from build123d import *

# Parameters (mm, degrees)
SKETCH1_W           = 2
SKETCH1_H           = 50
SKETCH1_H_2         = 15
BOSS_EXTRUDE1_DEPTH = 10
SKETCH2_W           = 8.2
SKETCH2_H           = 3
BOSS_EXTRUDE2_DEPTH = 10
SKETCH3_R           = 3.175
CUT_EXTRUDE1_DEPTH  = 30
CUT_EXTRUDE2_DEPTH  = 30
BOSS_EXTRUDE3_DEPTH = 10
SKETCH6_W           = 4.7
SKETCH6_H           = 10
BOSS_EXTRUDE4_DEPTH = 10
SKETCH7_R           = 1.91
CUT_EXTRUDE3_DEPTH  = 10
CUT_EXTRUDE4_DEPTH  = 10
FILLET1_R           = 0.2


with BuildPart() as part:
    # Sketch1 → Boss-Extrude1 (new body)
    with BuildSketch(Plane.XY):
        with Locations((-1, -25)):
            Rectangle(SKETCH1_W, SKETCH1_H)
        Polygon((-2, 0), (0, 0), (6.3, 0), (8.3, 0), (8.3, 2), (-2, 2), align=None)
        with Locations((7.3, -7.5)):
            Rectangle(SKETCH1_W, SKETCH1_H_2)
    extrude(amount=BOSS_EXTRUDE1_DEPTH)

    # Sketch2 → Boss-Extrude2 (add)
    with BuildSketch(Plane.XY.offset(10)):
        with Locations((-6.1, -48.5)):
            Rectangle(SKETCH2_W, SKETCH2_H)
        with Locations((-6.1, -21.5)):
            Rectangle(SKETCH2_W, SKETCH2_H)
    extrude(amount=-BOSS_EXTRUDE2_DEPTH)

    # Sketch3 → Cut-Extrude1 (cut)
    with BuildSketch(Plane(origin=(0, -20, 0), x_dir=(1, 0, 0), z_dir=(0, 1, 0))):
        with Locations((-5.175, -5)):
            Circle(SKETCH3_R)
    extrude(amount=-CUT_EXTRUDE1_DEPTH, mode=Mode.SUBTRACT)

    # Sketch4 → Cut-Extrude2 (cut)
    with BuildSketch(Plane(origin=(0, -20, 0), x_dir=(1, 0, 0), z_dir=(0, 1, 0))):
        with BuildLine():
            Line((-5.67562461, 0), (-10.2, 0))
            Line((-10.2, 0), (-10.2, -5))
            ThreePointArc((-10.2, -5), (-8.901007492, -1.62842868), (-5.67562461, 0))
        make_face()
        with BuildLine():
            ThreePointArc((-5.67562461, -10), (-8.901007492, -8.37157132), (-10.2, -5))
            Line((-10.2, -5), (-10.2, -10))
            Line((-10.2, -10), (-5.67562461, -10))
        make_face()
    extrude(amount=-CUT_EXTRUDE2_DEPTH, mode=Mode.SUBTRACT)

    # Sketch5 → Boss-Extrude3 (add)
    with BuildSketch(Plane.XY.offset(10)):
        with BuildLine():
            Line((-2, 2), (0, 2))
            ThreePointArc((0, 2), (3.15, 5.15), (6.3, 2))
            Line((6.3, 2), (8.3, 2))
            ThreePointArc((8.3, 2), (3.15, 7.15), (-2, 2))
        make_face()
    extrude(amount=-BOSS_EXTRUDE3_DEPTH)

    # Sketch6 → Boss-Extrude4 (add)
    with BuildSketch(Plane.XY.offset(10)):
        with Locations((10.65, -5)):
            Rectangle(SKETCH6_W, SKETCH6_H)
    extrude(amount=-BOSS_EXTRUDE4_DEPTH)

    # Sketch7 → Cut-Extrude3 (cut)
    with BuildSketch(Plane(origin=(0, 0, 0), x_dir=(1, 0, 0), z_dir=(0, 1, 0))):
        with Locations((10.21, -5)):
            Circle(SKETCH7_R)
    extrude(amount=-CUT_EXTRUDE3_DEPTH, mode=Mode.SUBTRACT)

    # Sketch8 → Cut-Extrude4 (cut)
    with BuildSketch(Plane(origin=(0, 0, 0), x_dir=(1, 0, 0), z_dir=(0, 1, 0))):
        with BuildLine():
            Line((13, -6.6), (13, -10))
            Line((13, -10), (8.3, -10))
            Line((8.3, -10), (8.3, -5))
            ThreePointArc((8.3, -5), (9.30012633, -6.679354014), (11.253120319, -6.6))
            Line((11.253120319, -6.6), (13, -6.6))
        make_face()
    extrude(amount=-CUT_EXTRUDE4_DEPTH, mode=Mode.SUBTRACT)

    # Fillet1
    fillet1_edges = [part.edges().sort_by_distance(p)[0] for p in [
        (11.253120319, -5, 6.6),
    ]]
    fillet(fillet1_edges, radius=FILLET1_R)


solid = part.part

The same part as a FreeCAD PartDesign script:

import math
import FreeCAD as App
import Part
import Sketcher


def edges_at(feature, points):
    """Names of the edges that pass closest to the given points."""
    edges = feature.Shape.Edges
    near = lambda p: min(range(len(edges)), key=lambda i: edges[i].distToShape(Part.Vertex(*p))[0])
    return sorted({f"Edge{near(p) + 1}" for p in points})

doc = App.newDocument("Part")
body = doc.addObject("PartDesign::Body", "Body")

# Sketch on XY plane
sketch1 = body.newObject("Sketcher::SketchObject", "Sketch")
sketch1.AttachmentSupport = (doc.getObject("XY_Plane"), [""])
sketch1.MapMode = "FlatFace"
sketch1.addGeometry([
    Part.LineSegment(App.Vector(-2, -50, 0), App.Vector(0, -50, 0)),  # 0
    Part.LineSegment(App.Vector(0, -50, 0), App.Vector(0, 0, 0)),  # 1
    Part.LineSegment(App.Vector(0, 0, 0), App.Vector(6.3, 0, 0)),  # 2
    Part.LineSegment(App.Vector(6.3, 0, 0), App.Vector(6.3, -15, 0)),  # 3
    Part.LineSegment(App.Vector(6.3, -15, 0), App.Vector(8.3, -15, 0)),  # 4
    Part.LineSegment(App.Vector(8.3, -15, 0), App.Vector(8.3, 2, 0)),  # 5
    Part.LineSegment(App.Vector(8.3, 2, 0), App.Vector(-2, 2, 0)),  # 6
    Part.LineSegment(App.Vector(-2, 2, 0), App.Vector(-2, -50, 0)),  # 7
], False)
sketch1.addConstraint([
    Sketcher.Constraint("Coincident", 0, 2, 1, 1),
    Sketcher.Constraint("Coincident", 1, 2, 2, 1),
    Sketcher.Constraint("Coincident", 2, 2, 3, 1),
    Sketcher.Constraint("Coincident", 3, 2, 4, 1),
    Sketcher.Constraint("Coincident", 4, 2, 5, 1),
    Sketcher.Constraint("Coincident", 5, 2, 6, 1),
    Sketcher.Constraint("Coincident", 6, 2, 7, 1),
    Sketcher.Constraint("Coincident", 7, 2, 0, 1),
    Sketcher.Constraint("Horizontal", 0),
    Sketcher.Constraint("Vertical", 1),
    Sketcher.Constraint("Horizontal", 2),
    Sketcher.Constraint("Vertical", 3),
    Sketcher.Constraint("Horizontal", 4),
    Sketcher.Constraint("Vertical", 5),
    Sketcher.Constraint("Horizontal", 6),
    Sketcher.Constraint("Vertical", 7),
    Sketcher.Constraint("Coincident", 1, 2, -1, 1),
    Sketcher.Constraint("Equal", 0, 4),
    Sketcher.Constraint("DistanceX", 0, 1, 0, 2, 2.0),
    Sketcher.Constraint("DistanceY", 1, 1, 1, 2, 50.0),
    Sketcher.Constraint("DistanceY", 3, 2, 3, 1, 15.0),
    Sketcher.Constraint("DistanceY", 5, 1, 5, 2, 17.0),
    Sketcher.Constraint("DistanceX", 2, 1, 2, 2, 6.3),
])
pad1 = body.newObject("PartDesign::Pad", "Pad")
pad1.Profile = sketch1
pad1.Length = 10

# Sketch on XY plane
sketch2 = body.newObject("Sketcher::SketchObject", "Sketch001")
sketch2.AttachmentSupport = (doc.getObject("XY_Plane"), [""])
sketch2.MapMode = "FlatFace"
sketch2.AttachmentOffset = App.Placement(App.Vector(0, 0, 10), App.Rotation())
sketch2.addGeometry([
    Part.LineSegment(App.Vector(-10.2, -47, 0), App.Vector(-10.2, -50, 0)),  # 0
    Part.LineSegment(App.Vector(-10.2, -50, 0), App.Vector(-2, -50, 0)),  # 1
    Part.LineSegment(App.Vector(-2, -50, 0), App.Vector(-2, -47, 0)),  # 2
    Part.LineSegment(App.Vector(-2, -47, 0), App.Vector(-10.2, -47, 0)),  # 3
    Part.LineSegment(App.Vector(-10.2, -20, 0), App.Vector(-10.2, -23, 0)),  # 4
    Part.LineSegment(App.Vector(-10.2, -23, 0), App.Vector(-2, -23, 0)),  # 5
    Part.LineSegment(App.Vector(-2, -23, 0), App.Vector(-2, -20, 0)),  # 6
    Part.LineSegment(App.Vector(-2, -20, 0), App.Vector(-10.2, -20, 0)),  # 7
], False)
sketch2.addConstraint([
    Sketcher.Constraint("Coincident", 0, 2, 1, 1),
    Sketcher.Constraint("Coincident", 1, 2, 2, 1),
    Sketcher.Constraint("Coincident", 2, 2, 3, 1),
    Sketcher.Constraint("Coincident", 3, 2, 0, 1),
    Sketcher.Constraint("Coincident", 4, 2, 5, 1),
    Sketcher.Constraint("Coincident", 5, 2, 6, 1),
    Sketcher.Constraint("Coincident", 6, 2, 7, 1),
    Sketcher.Constraint("Coincident", 7, 2, 4, 1),
    Sketcher.Constraint("Vertical", 0),
    Sketcher.Constraint("Horizontal", 1),
    Sketcher.Constraint("Vertical", 2),
    Sketcher.Constraint("Horizontal", 3),
    Sketcher.Constraint("Vertical", 4),
    Sketcher.Constraint("Horizontal", 5),
    Sketcher.Constraint("Vertical", 6),
    Sketcher.Constraint("Horizontal", 7),
    Sketcher.Constraint("Vertical", 3, 2, 4, 2),
    Sketcher.Constraint("Vertical", 2, 2, 5, 2),
    Sketcher.Constraint("Equal", 2, 4),
    Sketcher.Constraint("DistanceY", 0, 2, 0, 1, 3.0),
    Sketcher.Constraint("DistanceX", 1, 1, 1, 2, 8.2),
    Sketcher.Constraint("DistanceY", 0, 2, -1, 1, 50.0),
    Sketcher.Constraint("DistanceX", 1, 2, -1, 1, 2.0),
    Sketcher.Constraint("DistanceY", 4, 2, -1, 1, 23.0),
])
pad2 = body.newObject("PartDesign::Pad", "Pad001")
pad2.Profile = sketch2
pad2.Length = 10
pad2.Reversed = True

# Sketch on XZ plane
sketch3 = body.newObject("Sketcher::SketchObject", "Sketch002")
sketch3.AttachmentSupport = (doc.getObject("XZ_Plane"), [""])
sketch3.MapMode = "FlatFace"
sketch3.AttachmentOffset = App.Placement(App.Vector(0, 0, 20), App.Rotation())
sketch3.addGeometry(Part.Circle(App.Vector(-5.2, 5, 0), App.Vector(0, 0, 1), 3.2), False)
sketch3.addConstraint([
    Sketcher.Constraint("Diameter", 0, 6.35),
    Sketcher.Constraint("DistanceY", -1, 1, 0, 3, 5.0),
    Sketcher.Constraint("DistanceX", 0, 3, -1, 1, 5.175),
])
pocket1 = body.newObject("PartDesign::Pocket", "Pocket")
pocket1.Profile = sketch3
pocket1.Length = 30
pocket1.Reversed = True

# Sketch on XZ plane
sketch4 = body.newObject("Sketcher::SketchObject", "Sketch003")
sketch4.AttachmentSupport = (doc.getObject("XZ_Plane"), [""])
sketch4.MapMode = "FlatFace"
sketch4.AttachmentOffset = App.Placement(App.Vector(0, 0, 20), App.Rotation())
sketch4.addGeometry([
    Part.LineSegment(App.Vector(-5.7, 0, 0), App.Vector(-10.2, 0, 0)),  # 0
    Part.LineSegment(App.Vector(-10.2, 0, 0), App.Vector(-10.2, 5, 0)),  # 1
    Part.ArcOfCircle(Part.Circle(App.Vector(-5.2, 5, 0), App.Vector(0, 0, 1), 5), math.radians(-180), math.radians(-96)),  # 2
    Part.ArcOfCircle(Part.Circle(App.Vector(-5.2, 5, 0), App.Vector(0, 0, 1), 5), math.radians(96), math.radians(180)),  # 3
    Part.LineSegment(App.Vector(-10.2, 5, 0), App.Vector(-10.2, 10, 0)),  # 4
    Part.LineSegment(App.Vector(-10.2, 10, 0), App.Vector(-5.7, 10, 0)),  # 5
], False)
sketch4.addConstraint([
    Sketcher.Constraint("Coincident", 0, 2, 1, 1),
    Sketcher.Constraint("Tangent", 1, 2, 2, 1),
    Sketcher.Constraint("Coincident", 2, 2, 0, 1),
    Sketcher.Constraint("Tangent", 3, 2, 4, 1),
    Sketcher.Constraint("Coincident", 4, 2, 5, 1),
    Sketcher.Constraint("Coincident", 5, 2, 3, 1),
    Sketcher.Constraint("Horizontal", 0),
    Sketcher.Constraint("Vertical", 1),
    Sketcher.Constraint("Vertical", 4),
    Sketcher.Constraint("Horizontal", 5),
    Sketcher.Constraint("Coincident", 3, 3, 2, 3),
    Sketcher.Constraint("Equal", 2, 3),
    Sketcher.Constraint("PointOnObject", 0, 2, -1),
    Sketcher.Constraint("Vertical", 2, 2, 5, 2),
    Sketcher.Constraint("DistanceY", 1, 1, 1, 2, 5.0),
    Sketcher.Constraint("Radius", 2, 5.025),
    Sketcher.Constraint("DistanceX", 0, 2, -1, 1, 10.2),
])
pocket2 = body.newObject("PartDesign::Pocket", "Pocket001")
pocket2.Profile = sketch4
pocket2.Length = 30
pocket2.Reversed = True

# Sketch on XY plane
sketch5 = body.newObject("Sketcher::SketchObject", "Sketch004")
sketch5.AttachmentSupport = (doc.getObject("XY_Plane"), [""])
sketch5.MapMode = "FlatFace"
sketch5.AttachmentOffset = App.Placement(App.Vector(0, 0, 10), App.Rotation())
sketch5.addGeometry([
    Part.LineSegment(App.Vector(-2, 2, 0), App.Vector(0, 2, 0)),
    Part.ArcOfCircle(Part.Circle(App.Vector(3.1, 2, 0), App.Vector(0, 0, 1), 3.1), math.radians(0), math.radians(180)),
    Part.LineSegment(App.Vector(6.3, 2, 0), App.Vector(8.3, 2, 0)),
    Part.ArcOfCircle(Part.Circle(App.Vector(3.1, 2, 0), App.Vector(0, 0, 1), 5.2), math.radians(0), math.radians(180)),
], False)
sketch5.addConstraint([
    Sketcher.Constraint("Coincident", 0, 2, 1, 2),
    Sketcher.Constraint("Coincident", 1, 1, 2, 1),
    Sketcher.Constraint("Coincident", 2, 2, 3, 1),
    Sketcher.Constraint("Coincident", 3, 2, 0, 1),
    Sketcher.Constraint("Horizontal", 0),
    Sketcher.Constraint("Horizontal", 2),
    Sketcher.Constraint("Coincident", 3, 3, 1, 3),
    Sketcher.Constraint("PointOnObject", 0, 2, -2),
    Sketcher.Constraint("Horizontal", 3, 3, 0, 2),
    Sketcher.Constraint("Horizontal", 0, 2, 1, 1),
    Sketcher.Constraint("DistanceX", 0, 1, 0, 2, 2.0),
    Sketcher.Constraint("Radius", 1, 3.15),
    Sketcher.Constraint("DistanceY", -1, 1, 1, 3, 2.0),
])
pad3 = body.newObject("PartDesign::Pad", "Pad002")
pad3.Profile = sketch5
pad3.Length = 10
pad3.Reversed = True

# Sketch on XY plane
sketch6 = body.newObject("Sketcher::SketchObject", "Sketch005")
sketch6.AttachmentSupport = (doc.getObject("XY_Plane"), [""])
sketch6.MapMode = "FlatFace"
sketch6.AttachmentOffset = App.Placement(App.Vector(0, 0, 10), App.Rotation())
sketch6.addGeometry([
    Part.LineSegment(App.Vector(8.3, 0, 0), App.Vector(8.3, -10, 0)),
    Part.LineSegment(App.Vector(8.3, -10, 0), App.Vector(13, -10, 0)),
    Part.LineSegment(App.Vector(13, -10, 0), App.Vector(13, 0, 0)),
    Part.LineSegment(App.Vector(13, 0, 0), App.Vector(8.3, 0, 0)),
], False)
sketch6.addConstraint([
    Sketcher.Constraint("Coincident", 0, 2, 1, 1),
    Sketcher.Constraint("Coincident", 1, 2, 2, 1),
    Sketcher.Constraint("Coincident", 2, 2, 3, 1),
    Sketcher.Constraint("Coincident", 3, 2, 0, 1),
    Sketcher.Constraint("Vertical", 0),
    Sketcher.Constraint("Horizontal", 1),
    Sketcher.Constraint("Vertical", 2),
    Sketcher.Constraint("Horizontal", 3),
    Sketcher.Constraint("PointOnObject", 2, 2, -1),
    Sketcher.Constraint("DistanceY", 0, 2, 0, 1, 10.0),
    Sketcher.Constraint("DistanceX", 1, 1, 1, 2, 4.7),
    Sketcher.Constraint("DistanceX", -1, 1, 1, 2, 13.0),
])
pad4 = body.newObject("PartDesign::Pad", "Pad003")
pad4.Profile = sketch6
pad4.Length = 10
pad4.Reversed = True

# Sketch on XZ plane
sketch7 = body.newObject("Sketcher::SketchObject", "Sketch006")
sketch7.AttachmentSupport = (doc.getObject("XZ_Plane"), [""])
sketch7.MapMode = "FlatFace"
sketch7.addGeometry(Part.Circle(App.Vector(10.2, 5, 0), App.Vector(0, 0, 1), 1.9), False)
sketch7.addConstraint([
    Sketcher.Constraint("Diameter", 0, 3.82),
    Sketcher.Constraint("DistanceY", -1, 1, 0, 3, 5.0),
    Sketcher.Constraint("DistanceX", -1, 1, 0, 3, 10.21),
])
pocket3 = body.newObject("PartDesign::Pocket", "Pocket002")
pocket3.Profile = sketch7
pocket3.Length = 10
pocket3.Reversed = True

# Sketch on XZ plane
sketch8 = body.newObject("Sketcher::SketchObject", "Sketch007")
sketch8.AttachmentSupport = (doc.getObject("XZ_Plane"), [""])
sketch8.MapMode = "FlatFace"
sketch8.addGeometry([
    Part.LineSegment(App.Vector(13, 10, 0), App.Vector(13, 6.6, 0)),  # 0
    Part.LineSegment(App.Vector(13, 6.6, 0), App.Vector(11.3, 6.6, 0)),  # 1
    Part.ArcOfCircle(Part.Circle(App.Vector(10.2, 5, 0), App.Vector(0, 0, 1), 1.9), math.radians(57), math.radians(180)),  # 2
    Part.LineSegment(App.Vector(8.3, 5, 0), App.Vector(8.3, 10, 0)),  # 3
    Part.LineSegment(App.Vector(8.3, 10, 0), App.Vector(13, 10, 0)),  # 4
], False)
sketch8.addConstraint([
    Sketcher.Constraint("Coincident", 0, 2, 1, 1),
    Sketcher.Constraint("Coincident", 1, 2, 2, 1),
    Sketcher.Constraint("Tangent", 2, 2, 3, 1),
    Sketcher.Constraint("Coincident", 3, 2, 4, 1),
    Sketcher.Constraint("Coincident", 4, 2, 0, 1),
    Sketcher.Constraint("Vertical", 0),
    Sketcher.Constraint("Horizontal", 1),
    Sketcher.Constraint("Vertical", 3),
    Sketcher.Constraint("Horizontal", 4),
    Sketcher.Constraint("DistanceY", 3, 1, 3, 2, 5.0),
    Sketcher.Constraint("Radius", 2, 1.91),
    Sketcher.Constraint("DistanceX", 4, 1, 4, 2, 4.7),
    Sketcher.Constraint("DistanceY", 0, 2, 0, 1, 3.4),
    Sketcher.Constraint("DistanceY", -1, 1, 2, 3, 5.0),
    Sketcher.Constraint("DistanceX", -1, 1, 0, 2, 13.0),
])
pocket4 = body.newObject("PartDesign::Pocket", "Pocket003")
pocket4.Profile = sketch8
pocket4.Length = 10
pocket4.Reversed = True
doc.recompute()

fillet = body.newObject("PartDesign::Fillet", "Fillet")
fillet.Base = (pocket4, edges_at(pocket4, [(11.253, -5, 6.6)]))
fillet.Radius = 0.2

doc.recompute()
